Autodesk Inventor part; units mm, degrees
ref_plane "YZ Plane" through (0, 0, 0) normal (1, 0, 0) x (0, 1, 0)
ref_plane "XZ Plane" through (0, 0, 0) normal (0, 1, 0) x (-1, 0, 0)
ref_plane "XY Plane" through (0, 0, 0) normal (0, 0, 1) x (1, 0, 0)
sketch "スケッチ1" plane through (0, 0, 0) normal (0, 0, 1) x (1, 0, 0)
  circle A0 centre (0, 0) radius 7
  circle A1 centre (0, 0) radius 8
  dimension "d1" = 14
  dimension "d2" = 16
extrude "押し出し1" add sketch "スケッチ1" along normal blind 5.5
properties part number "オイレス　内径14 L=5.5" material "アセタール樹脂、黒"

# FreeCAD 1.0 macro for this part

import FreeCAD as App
import Part
import Sketcher

V = App.Vector

doc = App.newDocument("Part")
params = doc.addObject("Spreadsheet::Sheet", "Params")
for row, (alias, value) in enumerate([
    ("sketch1_diameter", "16 mm"),
    ("sketch1_diameter2", "14 mm"),
    ("pad1_length", "5.5 mm"),
], start=1):
    params.set(f"A{row}", alias)
    params.set(f"B{row}", "=" + value)
    params.setAlias(f"B{row}", alias)

body = doc.addObject("PartDesign::Body", "Body")

sketch1 = doc.addObject("Sketcher::SketchObject", "Sketch")
body.addObject(sketch1)
sketch1.AttachmentSupport = (doc.XY_Plane, [""])
sketch1.MapMode = "FlatFace"
sketch1.addGeometry([
    Part.Circle(V(0, 0, 0), V(0, 0, 1), 8),
    Part.Circle(V(0, 0, 0), V(0, 0, 1), 7),
], False)
sketch1.addConstraint([
    Sketcher.Constraint("Coincident", 0, 3, -1, 1),
    Sketcher.Constraint("Coincident", 1, 3, -1, 1),
    Sketcher.Constraint("Diameter", 0, 16.0),
    Sketcher.Constraint("Diameter", 1, 14.0),
])
sketch1.setExpression("Constraints[2]", "Params.sketch1_diameter")
sketch1.setExpression("Constraints[3]", "Params.sketch1_diameter2")
pad1 = doc.addObject("PartDesign::Pad", "Pad")
body.addObject(pad1)
pad1.Profile = sketch1
pad1.setExpression("Length", "Params.pad1_length")

doc.recompute()
